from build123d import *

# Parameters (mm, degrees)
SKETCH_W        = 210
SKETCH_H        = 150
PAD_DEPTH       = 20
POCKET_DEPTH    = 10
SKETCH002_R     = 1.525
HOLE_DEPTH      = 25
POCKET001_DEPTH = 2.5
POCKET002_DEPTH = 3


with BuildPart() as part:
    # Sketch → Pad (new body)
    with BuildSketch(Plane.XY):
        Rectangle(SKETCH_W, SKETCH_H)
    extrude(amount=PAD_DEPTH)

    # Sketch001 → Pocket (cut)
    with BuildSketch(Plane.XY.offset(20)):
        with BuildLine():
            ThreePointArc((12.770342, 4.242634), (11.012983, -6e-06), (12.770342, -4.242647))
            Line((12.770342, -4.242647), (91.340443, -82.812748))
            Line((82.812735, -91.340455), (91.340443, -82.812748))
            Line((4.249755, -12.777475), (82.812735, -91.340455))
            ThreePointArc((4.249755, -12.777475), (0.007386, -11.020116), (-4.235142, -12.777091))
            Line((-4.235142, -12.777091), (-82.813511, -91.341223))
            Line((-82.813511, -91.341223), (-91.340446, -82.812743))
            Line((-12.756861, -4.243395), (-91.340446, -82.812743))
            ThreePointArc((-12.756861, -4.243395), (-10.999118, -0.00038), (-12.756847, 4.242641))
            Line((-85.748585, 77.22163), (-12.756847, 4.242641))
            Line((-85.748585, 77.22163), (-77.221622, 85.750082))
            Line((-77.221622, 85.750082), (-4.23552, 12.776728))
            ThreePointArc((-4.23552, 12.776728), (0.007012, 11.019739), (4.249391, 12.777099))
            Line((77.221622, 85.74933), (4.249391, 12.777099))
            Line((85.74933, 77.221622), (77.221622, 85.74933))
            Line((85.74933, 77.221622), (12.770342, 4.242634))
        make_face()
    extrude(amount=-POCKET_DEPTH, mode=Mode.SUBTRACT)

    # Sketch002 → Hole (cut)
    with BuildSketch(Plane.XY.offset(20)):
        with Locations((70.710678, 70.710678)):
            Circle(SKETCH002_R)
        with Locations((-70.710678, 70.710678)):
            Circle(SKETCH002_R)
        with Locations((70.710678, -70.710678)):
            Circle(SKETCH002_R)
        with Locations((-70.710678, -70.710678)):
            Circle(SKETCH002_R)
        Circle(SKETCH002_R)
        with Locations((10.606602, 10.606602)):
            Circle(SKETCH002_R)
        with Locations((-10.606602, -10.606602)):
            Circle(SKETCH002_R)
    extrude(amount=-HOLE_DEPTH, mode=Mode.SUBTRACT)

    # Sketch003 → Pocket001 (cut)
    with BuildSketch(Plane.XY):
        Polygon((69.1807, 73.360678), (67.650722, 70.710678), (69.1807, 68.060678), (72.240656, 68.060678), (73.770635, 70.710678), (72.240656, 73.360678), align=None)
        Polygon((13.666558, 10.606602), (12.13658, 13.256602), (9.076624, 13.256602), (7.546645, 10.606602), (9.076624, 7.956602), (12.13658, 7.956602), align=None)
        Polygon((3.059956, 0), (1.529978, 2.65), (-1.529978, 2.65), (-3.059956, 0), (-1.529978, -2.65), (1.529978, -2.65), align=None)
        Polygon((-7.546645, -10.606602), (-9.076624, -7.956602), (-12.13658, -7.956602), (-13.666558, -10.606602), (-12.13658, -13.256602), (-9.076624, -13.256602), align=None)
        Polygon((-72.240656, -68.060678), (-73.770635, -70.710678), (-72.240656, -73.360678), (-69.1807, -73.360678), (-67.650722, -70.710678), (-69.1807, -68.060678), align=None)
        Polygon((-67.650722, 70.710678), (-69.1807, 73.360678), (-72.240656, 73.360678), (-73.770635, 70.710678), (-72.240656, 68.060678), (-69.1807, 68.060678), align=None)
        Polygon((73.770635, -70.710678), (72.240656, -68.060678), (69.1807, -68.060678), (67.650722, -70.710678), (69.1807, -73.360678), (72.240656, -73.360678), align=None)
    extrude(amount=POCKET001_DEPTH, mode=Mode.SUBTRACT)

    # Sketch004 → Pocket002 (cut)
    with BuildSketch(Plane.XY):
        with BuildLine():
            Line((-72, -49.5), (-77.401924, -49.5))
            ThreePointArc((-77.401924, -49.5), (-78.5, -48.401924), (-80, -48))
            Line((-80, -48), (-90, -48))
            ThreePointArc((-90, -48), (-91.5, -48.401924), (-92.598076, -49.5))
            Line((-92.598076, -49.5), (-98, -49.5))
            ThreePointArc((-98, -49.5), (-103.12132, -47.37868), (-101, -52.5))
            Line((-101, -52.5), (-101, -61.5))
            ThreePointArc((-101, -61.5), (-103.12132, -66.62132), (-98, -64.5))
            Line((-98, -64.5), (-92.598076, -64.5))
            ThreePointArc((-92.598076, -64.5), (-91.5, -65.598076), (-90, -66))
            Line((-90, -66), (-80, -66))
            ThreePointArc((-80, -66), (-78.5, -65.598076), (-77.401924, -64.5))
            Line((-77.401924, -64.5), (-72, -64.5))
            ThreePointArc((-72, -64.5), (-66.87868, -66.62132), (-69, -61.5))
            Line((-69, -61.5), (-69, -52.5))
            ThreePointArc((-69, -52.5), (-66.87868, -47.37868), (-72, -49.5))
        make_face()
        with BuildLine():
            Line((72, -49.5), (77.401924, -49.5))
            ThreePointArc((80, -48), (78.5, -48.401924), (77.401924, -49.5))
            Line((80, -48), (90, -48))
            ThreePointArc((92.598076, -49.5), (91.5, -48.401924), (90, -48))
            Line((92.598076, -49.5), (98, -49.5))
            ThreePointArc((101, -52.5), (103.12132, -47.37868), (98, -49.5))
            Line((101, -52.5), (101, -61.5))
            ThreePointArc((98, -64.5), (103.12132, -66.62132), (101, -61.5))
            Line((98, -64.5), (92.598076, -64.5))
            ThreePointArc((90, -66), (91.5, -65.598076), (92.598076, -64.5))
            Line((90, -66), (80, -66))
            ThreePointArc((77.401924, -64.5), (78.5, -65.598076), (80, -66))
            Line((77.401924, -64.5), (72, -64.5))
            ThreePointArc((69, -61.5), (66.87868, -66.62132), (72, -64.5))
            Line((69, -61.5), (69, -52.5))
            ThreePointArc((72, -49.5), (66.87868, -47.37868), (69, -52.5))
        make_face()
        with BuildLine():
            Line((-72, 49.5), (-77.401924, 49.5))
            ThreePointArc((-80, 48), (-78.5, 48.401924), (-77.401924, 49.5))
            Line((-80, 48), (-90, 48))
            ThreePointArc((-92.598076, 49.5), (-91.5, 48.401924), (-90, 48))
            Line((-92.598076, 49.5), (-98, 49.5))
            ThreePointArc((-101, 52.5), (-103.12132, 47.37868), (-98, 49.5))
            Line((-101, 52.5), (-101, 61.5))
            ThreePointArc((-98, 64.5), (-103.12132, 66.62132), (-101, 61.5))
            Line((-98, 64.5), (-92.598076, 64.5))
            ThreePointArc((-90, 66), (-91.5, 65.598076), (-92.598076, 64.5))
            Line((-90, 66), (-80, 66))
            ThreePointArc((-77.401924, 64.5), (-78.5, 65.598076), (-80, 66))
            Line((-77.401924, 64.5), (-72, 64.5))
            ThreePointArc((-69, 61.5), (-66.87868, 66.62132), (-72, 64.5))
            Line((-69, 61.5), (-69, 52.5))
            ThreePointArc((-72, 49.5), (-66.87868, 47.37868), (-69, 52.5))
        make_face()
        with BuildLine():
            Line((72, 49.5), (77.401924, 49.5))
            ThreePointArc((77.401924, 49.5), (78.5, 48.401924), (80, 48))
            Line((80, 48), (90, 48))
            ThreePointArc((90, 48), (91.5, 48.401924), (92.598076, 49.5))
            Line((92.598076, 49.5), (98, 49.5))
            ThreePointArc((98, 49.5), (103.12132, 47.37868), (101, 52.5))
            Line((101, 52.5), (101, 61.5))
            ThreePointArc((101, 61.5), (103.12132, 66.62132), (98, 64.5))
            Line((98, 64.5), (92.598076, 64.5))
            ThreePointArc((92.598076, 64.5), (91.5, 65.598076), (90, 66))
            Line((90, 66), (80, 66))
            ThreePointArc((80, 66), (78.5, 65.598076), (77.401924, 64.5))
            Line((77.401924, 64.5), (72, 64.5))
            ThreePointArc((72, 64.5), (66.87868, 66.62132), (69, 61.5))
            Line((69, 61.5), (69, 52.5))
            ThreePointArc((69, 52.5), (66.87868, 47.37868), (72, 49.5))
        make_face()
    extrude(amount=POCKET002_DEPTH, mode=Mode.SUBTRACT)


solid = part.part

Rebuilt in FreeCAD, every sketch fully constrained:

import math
import FreeCAD as App
import Part
import Sketcher
from FreeCAD import Vector
Q = App.Units.Quantity

doc = App.newDocument("Part")
body = doc.addObject("PartDesign::Body", "Body")

# Sketch on XY plane
sketch1 = body.newObject("Sketcher::SketchObject", "Sketch")
sketch1.AttachmentSupport = (doc.getObject("XY_Plane"), [""])
sketch1.MapMode = "FlatFace"
sketch1.addGeometry([
    Part.LineSegment(Vector(-105, 75, 0), Vector(-105, -75, 0)),
    Part.LineSegment(Vector(-105, -75, 0), Vector(105, -75, 0)),
    Part.LineSegment(Vector(105, -75, 0), Vector(105, 75, 0)),
    Part.LineSegment(Vector(105, 75, 0), Vector(-105, 75, 0)),
], False)
sketch1.addConstraint([
    Sketcher.Constraint("Coincident", 0, 2, 1, 1),
    Sketcher.Constraint("Coincident", 1, 2, 2, 1),
    Sketcher.Constraint("Coincident", 2, 2, 3, 1),
    Sketcher.Constraint("Coincident", 3, 2, 0, 1),
    Sketcher.Constraint("Vertical", 0),
    Sketcher.Constraint("Horizontal", 1),
    Sketcher.Constraint("Vertical", 2),
    Sketcher.Constraint("Horizontal", 3),
    Sketcher.Constraint("Symmetric", 0, 2, 2, 2, -1, 1),
    Sketcher.Constraint("DistanceX", 1, 1, 1, 2, Q("210 mm")),
    Sketcher.Constraint("DistanceY", 0, 2, 0, 1, Q("150 mm")),
])
pad1 = body.newObject("PartDesign::Pad", "Pad")
pad1.Profile = sketch1
pad1.Length = 20

# Sketch on XY plane
sketch2 = body.newObject("Sketcher::SketchObject", "Sketch001")
sketch2.AttachmentSupport = (doc.getObject("XY_Plane"), [""])
sketch2.MapMode = "FlatFace"
sketch2.AttachmentOffset = App.Placement(Vector(0, 0, 20), App.Rotation())
sketch2.addGeometry([
    Part.ArcOfCircle(Part.Circle(Vector(17, 0, 0), Vector(0, 0, 1), 6), math.radians(135), math.radians(225)),  # 0
    Part.LineSegment(Vector(13, 4, 0), Vector(86, 77, 0)),  # 1
    Part.LineSegment(Vector(86, 77, 0), Vector(77, 86, 0)),  # 2
    Part.LineSegment(Vector(77, 86, 0), Vector(4, 13, 0)),  # 3
    Part.ArcOfCircle(Part.Circle(Vector(0, 17, 0), Vector(0, 0, 1), 6), math.radians(-135), math.radians(-45)),  # 4
    Part.LineSegment(Vector(-4, 13, 0), Vector(-77, 86, 0)),  # 5
    Part.LineSegment(Vector(-77, 86, 0), Vector(-86, 77, 0)),  # 6
    Part.LineSegment(Vector(-86, 77, 0), Vector(-13, 4, 0)),  # 7
    Part.ArcOfCircle(Part.Circle(Vector(-17, 0, 0), Vector(0, 0, 1), 6), math.radians(-45), math.radians(45)),  # 8
    Part.LineSegment(Vector(-13, -4, 0), Vector(-91, -83, 0)),  # 9
    Part.LineSegment(Vector(-91, -83, 0), Vector(-83, -91, 0)),  # 10
    Part.LineSegment(Vector(-83, -91, 0), Vector(-4, -13, 0)),  # 11
    Part.ArcOfCircle(Part.Circle(Vector(0, -17, 0), Vector(0, 0, 1), 6), math.radians(45), math.radians(135)),  # 12
    Part.LineSegment(Vector(4, -13, 0), Vector(83, -91, 0)),  # 13
    Part.LineSegment(Vector(83, -91, 0), Vector(91, -83, 0)),  # 14
    Part.LineSegment(Vector(91, -83, 0), Vector(13, -4, 0)),  # 15
], False)
sketch2.addConstraint([
    Sketcher.Constraint("Tangent", 0, 1, 1, 1),
    Sketcher.Constraint("Coincident", 1, 2, 2, 1),
    Sketcher.Constraint("Coincident", 2, 2, 3, 1),
    Sketcher.Constraint("Tangent", 3, 2, 4, 2),
    Sketcher.Constraint("Tangent", 4, 1, 5, 1),
    Sketcher.Constraint("Coincident", 5, 2, 6, 1),
    Sketcher.Constraint("Coincident", 6, 2, 7, 1),
    Sketcher.Constraint("Tangent", 7, 2, 8, 2),
    Sketcher.Constraint("Tangent", 8, 1, 9, 1),
    Sketcher.Constraint("Coincident", 9, 2, 10, 1),
    Sketcher.Constraint("Coincident", 10, 2, 11, 1),
    Sketcher.Constraint("Tangent", 11, 2, 12, 2),
    Sketcher.Constraint("Tangent", 12, 1, 13, 1),
    Sketcher.Constraint("Coincident", 13, 2, 14, 1),
    Sketcher.Constraint("Coincident", 14, 2, 15, 1),
    Sketcher.Constraint("Tangent", 15, 2, 0, 2),
    Sketcher.Constraint("Equal", 0, 4),
    Sketcher.Constraint("Equal", 0, 8),
    Sketcher.Constraint("Equal", 8, 12),
    Sketcher.Constraint("Symmetric", 9, 2, 14, 2, -2),
    Sketcher.Constraint("Perpendicular", 1, 2),
    Sketcher.Constraint("Perpendicular", 2, 3),
    Sketcher.Constraint("Perpendicular", 5, 6),
    Sketcher.Constraint("Perpendicular", 6, 7),
    Sketcher.Constraint("Perpendicular", 9, 10),
    Sketcher.Constraint("Perpendicular", 10, 11),
    Sketcher.Constraint("Perpendicular", 3, 13),
    Sketcher.Constraint("Perpendicular", 13, 14),
    Sketcher.Constraint("Perpendicular", 14, 15),
    Sketcher.Constraint("Vertical", 0, 1, 15, 2),
    Sketcher.Constraint("Equal", 2, 6),
    Sketcher.Constraint("Equal", 6, 10),
    Sketcher.Constraint("Equal", 10, 14),
    Sketcher.Constraint("Radius", 0, Q("6 mm")),
    Sketcher.Constraint("Distance", 2, Q("12.06 mm")),
    Sketcher.Constraint("DistanceY", 8, 3, 6, 2, Q("77.222 mm")),
    Sketcher.Constraint("DistanceY", -1, 1, 3, 2, Q("12.777099 mm")),
    Sketcher.Constraint("DistanceY", 8, 3, 2, 2, Q("85.7497 mm")),
    Sketcher.Constraint("DistanceX", 8, 3, 4, 1, Q("12.7636 mm")),
    Sketcher.Constraint("DistanceX", 5, 2, 4, 1, Q("72.986102 mm")),
    Sketcher.Constraint("DistanceX", 9, 2, 7, 2, Q("78.583599 mm")),
    Sketcher.Constraint("DistanceX", 0, 1, 14, 2, Q("78.570101 mm")),
    Sketcher.Constraint("Distance", 11, Q("111.116529 mm")),
])
pocket1 = body.newObject("PartDesign::Pocket", "Pocket")
pocket1.Profile = sketch2
pocket1.Length = 10

# Sketch on XY plane
sketch3 = body.newObject("Sketcher::SketchObject", "Sketch002")
sketch3.AttachmentSupport = (doc.getObject("XY_Plane"), [""])
sketch3.MapMode = "FlatFace"
sketch3.AttachmentOffset = App.Placement(Vector(0, 0, 20), App.Rotation())
sketch3.addGeometry([
    Part.Circle(Vector(70.7, 70.7, 0), Vector(0, 0, 1), 1.5),  # 0
    Part.Circle(Vector(-70.7, 70.7, 0), Vector(0, 0, 1), 1.5),  # 1
    Part.Circle(Vector(70.7, -70.7, 0), Vector(0, 0, 1), 1.5),  # 2
    Part.Circle(Vector(-70.7, -70.7, 0), Vector(0, 0, 1), 1.5),  # 3
    Part.Circle(Vector(0, 0, 0), Vector(0, 0, 1), 1.5),  # 4
    Part.Circle(Vector(10.6, 10.6, 0), Vector(0, 0, 1), 1.5),  # 5
    Part.Circle(Vector(-10.6, -10.6, 0), Vector(0, 0, 1), 1.5),  # 6
], False)
sketch3.addConstraint([
    Sketcher.Constraint("Coincident", 4, 3, -1, 1),
    Sketcher.Constraint("Equal", 0, 1),
    Sketcher.Constraint("Equal", 1, 2),
    Sketcher.Constraint("Equal", 2, 3),
    Sketcher.Constraint("Equal", 3, 4),
    Sketcher.Constraint("Equal", 4, 5),
    Sketcher.Constraint("Equal", 5, 6),
    Sketcher.Constraint("Symmetric", 1, 3, 2, 3, -1, 1),
    Sketcher.Constraint("Symmetric", 0, 3, 3, 3, -1, 1),
    Sketcher.Constraint("Symmetric", 5, 3, 6, 3, -1, 1),
    Sketcher.Constraint("Symmetric", 0, 3, 1, 3, -2),
    Sketcher.Constraint("Diameter", 0, Q("3.05 mm")),
    Sketcher.Constraint("DistanceX", -1, 1, 0, 3, Q("70.710678 mm")),
    Sketcher.Constraint("DistanceY", -1, 1, 0, 3, Q("70.710678 mm")),
    Sketcher.Constraint("DistanceX", 1, 3, 5, 3, Q("81.31728 mm")),
    Sketcher.Constraint("DistanceY", 2, 3, 5, 3, Q("81.31728 mm")),
])
pocket2 = body.newObject("PartDesign::Pocket", "Pocket001")
pocket2.Profile = sketch3
pocket2.Length = 25

# Sketch on XY plane
sketch4 = body.newObject("Sketcher::SketchObject", "Sketch003")
sketch4.AttachmentSupport = (doc.getObject("XY_Plane"), [""])
sketch4.MapMode = "FlatFace"
sketch4.addGeometry([
    Part.LineSegment(Vector(69.2, 73.4, 0), Vector(67.7, 70.7, 0)),  # 0
    Part.LineSegment(Vector(67.7, 70.7, 0), Vector(69.2, 68.1, 0)),  # 1
    Part.LineSegment(Vector(69.2, 68.1, 0), Vector(72.2, 68.1, 0)),  # 2
    Part.LineSegment(Vector(72.2, 68.1, 0), Vector(73.8, 70.7, 0)),  # 3
    Part.LineSegment(Vector(73.8, 70.7, 0), Vector(72.2, 73.4, 0)),  # 4
    Part.LineSegment(Vector(72.2, 73.4, 0), Vector(69.2, 73.4, 0)),  # 5
    Part.LineSegment(Vector(13.7, 10.6, 0), Vector(12.1, 13.3, 0)),  # 6
    Part.LineSegment(Vector(12.1, 13.3, 0), Vector(9.1, 13.3, 0)),  # 7
    Part.LineSegment(Vector(9.1, 13.3, 0), Vector(7.5, 10.6, 0)),  # 8
    Part.LineSegment(Vector(7.5, 10.6, 0), Vector(9.1, 8, 0)),  # 9
    Part.LineSegment(Vector(9.1, 8, 0), Vector(12.1, 8, 0)),  # 10
    Part.LineSegment(Vector(12.1, 8, 0), Vector(13.7, 10.6, 0)),  # 11
    Part.LineSegment(Vector(3.1, 0, 0), Vector(1.5, 2.6, 0)),  # 12
    Part.LineSegment(Vector(1.5, 2.6, 0), Vector(-1.5, 2.6, 0)),  # 13
    Part.LineSegment(Vector(-1.5, 2.6, 0), Vector(-3.1, 0, 0)),  # 14
    Part.LineSegment(Vector(-3.1, 0, 0), Vector(-1.5, -2.6, 0)),  # 15
    Part.LineSegment(Vector(-1.5, -2.6, 0), Vector(1.5, -2.6, 0)),  # 16
    Part.LineSegment(Vector(1.5, -2.6, 0), Vector(3.1, 0, 0)),  # 17
    Part.LineSegment(Vector(-7.5, -10.6, 0), Vector(-9.1, -8, 0)),  # 18
    Part.LineSegment(Vector(-9.1, -8, 0), Vector(-12.1, -8, 0)),  # 19
    Part.LineSegment(Vector(-12.1, -8, 0), Vector(-13.7, -10.6, 0)),  # 20
    Part.LineSegment(Vector(-13.7, -10.6, 0), Vector(-12.1, -13.3, 0)),  # 21
    Part.LineSegment(Vector(-12.1, -13.3, 0), Vector(-9.1, -13.3, 0)),  # 22
    Part.LineSegment(Vector(-9.1, -13.3, 0), Vector(-7.5, -10.6, 0)),  # 23
    Part.LineSegment(Vector(-72.2, -68.1, 0), Vector(-73.8, -70.7, 0)),  # 24
    Part.LineSegment(Vector(-73.8, -70.7, 0), Vector(-72.2, -73.4, 0)),  # 25
    Part.LineSegment(Vector(-72.2, -73.4, 0), Vector(-69.2, -73.4, 0)),  # 26
    Part.LineSegment(Vector(-69.2, -73.4, 0), Vector(-67.7, -70.7, 0)),  # 27
    Part.LineSegment(Vector(-67.7, -70.7, 0), Vector(-69.2, -68.1, 0)),  # 28
    Part.LineSegment(Vector(-69.2, -68.1, 0), Vector(-72.2, -68.1, 0)),  # 29
    Part.LineSegment(Vector(-67.7, 70.7, 0), Vector(-69.2, 73.4, 0)),  # 30
    Part.LineSegment(Vector(-69.2, 73.4, 0), Vector(-72.2, 73.4, 0)),  # 31
    Part.LineSegment(Vector(-72.2, 73.4, 0), Vector(-73.8, 70.7, 0)),  # 32
    Part.LineSegment(Vector(-73.8, 70.7, 0), Vector(-72.2, 68.1, 0)),  # 33
    Part.LineSegment(Vector(-72.2, 68.1, 0), Vector(-69.2, 68.1, 0)),  # 34
    Part.LineSegment(Vector(-69.2, 68.1, 0), Vector(-67.7, 70.7, 0)),  # 35
    Part.LineSegment(Vector(73.8, -70.7, 0), Vector(72.2, -68.1, 0)),  # 36
    Part.LineSegment(Vector(72.2, -68.1, 0), Vector(69.2, -68.1, 0)),  # 37
    Part.LineSegment(Vector(69.2, -68.1, 0), Vector(67.7, -70.7, 0)),  # 38
    Part.LineSegment(Vector(67.7, -70.7, 0), Vector(69.2, -73.4, 0)),  # 39
    Part.LineSegment(Vector(69.2, -73.4, 0), Vector(72.2, -73.4, 0)),  # 40
    Part.LineSegment(Vector(72.2, -73.4, 0), Vector(73.8, -70.7, 0)),  # 41
], False)
sketch4.addConstraint([
    Sketcher.Constraint("Coincident", 0, 2, 1, 1),
    Sketcher.Constraint("Coincident", 1, 2, 2, 1),
    Sketcher.Constraint("Coincident", 2, 2, 3, 1),
    Sketcher.Constraint("Coincident", 3, 2, 4, 1),
    Sketcher.Constraint("Coincident", 4, 2, 5, 1),
    Sketcher.Constraint("Coincident", 5, 2, 0, 1),
    Sketcher.Constraint("Coincident", 6, 2, 7, 1),
    Sketcher.Constraint("Coincident", 7, 2, 8, 1),
    Sketcher.Constraint("Coincident", 8, 2, 9, 1),
    Sketcher.Constraint("Coincident", 9, 2, 10, 1),
    Sketcher.Constraint("Coincident", 10, 2, 11, 1),
    Sketcher.Constraint("Coincident", 11, 2, 6, 1),
    Sketcher.Constraint("Coincident", 12, 2, 13, 1),
    Sketcher.Constraint("Coincident", 13, 2, 14, 1),
    Sketcher.Constraint("Coincident", 14, 2, 15, 1),
    Sketcher.Constraint("Coincident", 15, 2, 16, 1),
    Sketcher.Constraint("Coincident", 16, 2, 17, 1),
    Sketcher.Constraint("Coincident", 17, 2, 12, 1),
    Sketcher.Constraint("Coincident", 18, 2, 19, 1),
    Sketcher.Constraint("Coincident", 19, 2, 20, 1),
    Sketcher.Constraint("Coincident", 20, 2, 21, 1),
    Sketcher.Constraint("Coincident", 21, 2, 22, 1),
    Sketcher.Constraint("Coincident", 22, 2, 23, 1),
    Sketcher.Constraint("Coincident", 23, 2, 18, 1),
    Sketcher.Constraint("Coincident", 24, 2, 25, 1),
    Sketcher.Constraint("Coincident", 25, 2, 26, 1),
    Sketcher.Constraint("Coincident", 26, 2, 27, 1),
    Sketcher.Constraint("Coincident", 27, 2, 28, 1),
    Sketcher.Constraint("Coincident", 28, 2, 29, 1),
    Sketcher.Constraint("Coincident", 29, 2, 24, 1),
    Sketcher.Constraint("Coincident", 30, 2, 31, 1),
    Sketcher.Constraint("Coincident", 31, 2, 32, 1),
    Sketcher.Constraint("Coincident", 32, 2, 33, 1),
    Sketcher.Constraint("Coincident", 33, 2, 34, 1),
    Sketcher.Constraint("Coincident", 34, 2, 35, 1),
    Sketcher.Constraint("Coincident", 35, 2, 30, 1),
    Sketcher.Constraint("Coincident", 36, 2, 37, 1),
    Sketcher.Constraint("Coincident", 37, 2, 38, 1),
    Sketcher.Constraint("Coincident", 38, 2, 39, 1),
    Sketcher.Constraint("Coincident", 39, 2, 40, 1),
    Sketcher.Constraint("Coincident", 40, 2, 41, 1),
    Sketcher.Constraint("Coincident", 41, 2, 36, 1),
    Sketcher.Constraint("Horizontal", 2),
    Sketcher.Constraint("Horizontal", 5),
    Sketcher.Constraint("Horizontal", 7),
    Sketcher.Constraint("Horizontal", 10),
    Sketcher.Constraint("Horizontal", 13),
    Sketcher.Constraint("Horizontal", 16),
    Sketcher.Constraint("Horizontal", 19),
    Sketcher.Constraint("Horizontal", 22),
    Sketcher.Constraint("Horizontal", 26),
    Sketcher.Constraint("Horizontal", 29),
    Sketcher.Constraint("Horizontal", 31),
    Sketcher.Constraint("Horizontal", 34),
    Sketcher.Constraint("Horizontal", 37),
    Sketcher.Constraint("Horizontal", 40),
    Sketcher.Constraint("Symmetric", 12, 2, 15, 2, -1, 1),
    Sketcher.Constraint("Symmetric", 14, 2, 17, 2, -1, 1),
    Sketcher.Constraint("Symmetric", 9, 2, 18, 2, -1, 1),
    Sketcher.Constraint("Symmetric", 11, 2, 20, 2, -1, 1),
    Sketcher.Constraint("Symmetric", 6, 2, 21, 2, -1, 1),
    Sketcher.Constraint("Symmetric", 8, 2, 23, 2, -1, 1),
    Sketcher.Constraint("Symmetric", 3, 2, 24, 2, -1, 1),
    Sketcher.Constraint("Symmetric", 4, 2, 25, 2, -1, 1),
    Sketcher.Constraint("Symmetric", 0, 2, 27, 2, -1, 1),
    Sketcher.Constraint("Symmetric", 1, 2, 28, 2, -1, 1),
    Sketcher.Constraint("Symmetric", 33, 2, 36, 2, -1, 1),
    Sketcher.Constraint("Symmetric", 35, 2, 38, 2, -1, 1),
    Sketcher.Constraint("Symmetric", 30, 2, 39, 2, -1, 1),
    Sketcher.Constraint("Symmetric", 32, 2, 41, 2, -1, 1),
    Sketcher.Constraint("Symmetric", 5, 2, 30, 2, -2),
    Sketcher.Constraint("Symmetric", 3, 2, 32, 2, -2),
    Sketcher.Constraint("Symmetric", 2, 2, 33, 2, -2),
    Sketcher.Constraint("Symmetric", 0, 2, 35, 2, -2),
    Sketcher.Constraint("PointOnObject", 14, 2, -1),
    Sketcher.Constraint("Parallel", 0, 3),
    Sketcher.Constraint("Parallel", 1, 4),
    Sketcher.Constraint("Parallel", 4, 6),
    Sketcher.Constraint("Parallel", 3, 8),
    Sketcher.Constraint("Parallel", 6, 9),
    Sketcher.Constraint("Parallel", 8, 11),
    Sketcher.Constraint("Parallel", 9, 12),
    Sketcher.Constraint("Parallel", 11, 14),
    Sketcher.Constraint("Parallel", 14, 17),
    Sketcher.Constraint("Parallel", 17, 20),
    Sketcher.Constraint("Parallel", 20, 23),
    Sketcher.Constraint("Parallel", 23, 24),
    Sketcher.Constraint("Parallel", 24, 27),
    Sketcher.Constraint("Parallel", 28, 30),
    Sketcher.Constraint("Parallel", 27, 32),
    Sketcher.Constraint("Parallel", 32, 35),
    Sketcher.Constraint("Parallel", 35, 38),
    Sketcher.Constraint("Parallel", 38, 41),
    Sketcher.Constraint("Horizontal", 0, 2, 3, 2),
    Sketcher.Constraint("Horizontal", 8, 2, 11, 2),
    Sketcher.Constraint("Vertical", 2, 2, 4, 2),
    Sketcher.Constraint("Vertical", 7, 2, 9, 2),
    Sketcher.Constraint("Equal", 5, 7),
    Sketcher.Constraint("Equal", 10, 13),
    Sketcher.Constraint("Equal", 4, 6),
    Sketcher.Constraint("Equal", 11, 12),
    Sketcher.Constraint("Angle", 0, Q("-119.999997 deg")),
    Sketcher.Constraint("DistanceY", 2, 2, 4, 2, Q("5.3 mm")),
    Sketcher.Constraint("DistanceX", -1, 1, 1, 2, Q("69.1807 mm")),
    Sketcher.Constraint("DistanceY", 12, 2, 9, 2, Q("5.306602 mm")),
    Sketcher.Constraint("DistanceX", 14, 2, 8, 2, Q("10.606601 mm")),
    Sketcher.Constraint("DistanceX", 31, 2, 14, 2, Q("69.1807 mm")),
    Sketcher.Constraint("DistanceY", -1, 1, 0, 2, Q("70.710678 mm")),
])
pocket3 = body.newObject("PartDesign::Pocket", "Pocket002")
pocket3.Profile = sketch4
pocket3.Length = 2.5
pocket3.Reversed = True

# Sketch on XY plane
sketch5 = body.newObject("Sketcher::SketchObject", "Sketch004")
sketch5.AttachmentSupport = (doc.getObject("XY_Plane"), [""])
sketch5.MapMode = "FlatFace"
sketch5.addGeometry([
    Part.LineSegment(Vector(-72, -49.5, 0), Vector(-77.4, -49.5, 0)),  # 0
    Part.ArcOfCircle(Part.Circle(Vector(-80, -51, 0), Vector(0, 0, 1), 3), math.radians(30), math.radians(90)),  # 1
    Part.LineSegment(Vector(-80, -48, 0), Vector(-90, -48, 0)),  # 2
    Part.ArcOfCircle(Part.Circle(Vector(-90, -51, 0), Vector(0, 0, 1), 3), math.radians(90), math.radians(150)),  # 3
    Part.LineSegment(Vector(-92.6, -49.5, 0), Vector(-98, -49.5, 0)),  # 4
    Part.ArcOfCircle(Part.Circle(Vector(-101, -49.5, 0), Vector(0, 0, 1), 3), math.radians(0), math.radians(270)),  # 5
    Part.LineSegment(Vector(-101, -52.5, 0), Vector(-101, -61.5, 0)),  # 6
    Part.ArcOfCircle(Part.Circle(Vector(-101, -64.5, 0), Vector(0, 0, 1), 3), math.radians(90), math.radians(360)),  # 7
    Part.LineSegment(Vector(-98, -64.5, 0), Vector(-92.6, -64.5, 0)),  # 8
    Part.ArcOfCircle(Part.Circle(Vector(-90, -63, 0), Vector(0, 0, 1), 3), math.radians(-150), math.radians(-90)),  # 9
    Part.LineSegment(Vector(-90, -66, 0), Vector(-80, -66, 0)),  # 10
    Part.ArcOfCircle(Part.Circle(Vector(-80, -63, 0), Vector(0, 0, 1), 3), math.radians(-90), math.radians(-30)),  # 11
    Part.LineSegment(Vector(-77.4, -64.5, 0), Vector(-72, -64.5, 0)),  # 12
    Part.ArcOfCircle(Part.Circle(Vector(-69, -64.5, 0), Vector(0, 0, 1), 3), math.radians(-180), math.radians(90)),  # 13
    Part.LineSegment(Vector(-69, -61.5, 0), Vector(-69, -52.5, 0)),  # 14
    Part.ArcOfCircle(Part.Circle(Vector(-69, -49.5, 0), Vector(0, 0, 1), 3), math.radians(-90), math.radians(180)),  # 15
    Part.LineSegment(Vector(77.4, -49.5, 0), Vector(72, -49.5, 0)),  # 16
    Part.ArcOfCircle(Part.Circle(Vector(69, -49.5, 0), Vector(0, 0, 1), 3), math.radians(0), math.radians(270)),  # 17
    Part.LineSegment(Vector(69, -52.5, 0), Vector(69, -61.5, 0)),  # 18
    Part.ArcOfCircle(Part.Circle(Vector(69, -64.5, 0), Vector(0, 0, 1), 3), math.radians(90), math.radians(360)),  # 19
    Part.LineSegment(Vector(72, -64.5, 0), Vector(77.4, -64.5, 0)),  # 20
    Part.ArcOfCircle(Part.Circle(Vector(80, -63, 0), Vector(0, 0, 1), 3), math.radians(-150), math.radians(-90)),  # 21
    Part.LineSegment(Vector(80, -66, 0), Vector(90, -66, 0)),  # 22
    Part.ArcOfCircle(Part.Circle(Vector(90, -63, 0), Vector(0, 0, 1), 3), math.radians(-90), math.radians(-30)),  # 23
    Part.LineSegment(Vector(92.6, -64.5, 0), Vector(98, -64.5, 0)),  # 24
    Part.ArcOfCircle(Part.Circle(Vector(101, -64.5, 0), Vector(0, 0, 1), 3), math.radians(-180), math.radians(90)),  # 25
    Part.LineSegment(Vector(101, -61.5, 0), Vector(101, -52.5, 0)),  # 26
    Part.ArcOfCircle(Part.Circle(Vector(101, -49.5, 0), Vector(0, 0, 1), 3), math.radians(-90), math.radians(180)),  # 27
    Part.LineSegment(Vector(98, -49.5, 0), Vector(92.6, -49.5, 0)),  # 28
    Part.ArcOfCircle(Part.Circle(Vector(90, -51, 0), Vector(0, 0, 1), 3), math.radians(30), math.radians(90)),  # 29
    Part.LineSegment(Vector(90, -48, 0), Vector(80, -48, 0)),  # 30
    Part.ArcOfCircle(Part.Circle(Vector(80, -51, 0), Vector(0, 0, 1), 3), math.radians(90), math.radians(150)),  # 31
    Part.LineSegment(Vector(-77.4, 49.5, 0), Vector(-72, 49.5, 0)),  # 32
    Part.ArcOfCircle(Part.Circle(Vector(-69, 49.5, 0), Vector(0, 0, 1), 3), math.radians(-180), math.radians(90)),  # 33
    Part.LineSegment(Vector(-69, 52.5, 0), Vector(-69, 61.5, 0)),  # 34
    Part.ArcOfCircle(Part.Circle(Vector(-69, 64.5, 0), Vector(0, 0, 1), 3), math.radians(-90), math.radians(180)),  # 35
    Part.LineSegment(Vector(-72, 64.5, 0), Vector(-77.4, 64.5, 0)),  # 36
    Part.ArcOfCircle(Part.Circle(Vector(-80, 63, 0), Vector(0, 0, 1), 3), math.radians(30), math.radians(90)),  # 37
    Part.LineSegment(Vector(-80, 66, 0), Vector(-90, 66, 0)),  # 38
    Part.ArcOfCircle(Part.Circle(Vector(-90, 63, 0), Vector(0, 0, 1), 3), math.radians(90), math.radians(150)),  # 39
    Part.LineSegment(Vector(-92.6, 64.5, 0), Vector(-98, 64.5, 0)),  # 40
    Part.ArcOfCircle(Part.Circle(Vector(-101, 64.5, 0), Vector(0, 0, 1), 3), math.radians(0), math.radians(270)),  # 41
    Part.LineSegment(Vector(-101, 61.5, 0), Vector(-101, 52.5, 0)),  # 42
    Part.ArcOfCircle(Part.Circle(Vector(-101, 49.5, 0), Vector(0, 0, 1), 3), math.radians(90), math.radians(360)),  # 43
    Part.LineSegment(Vector(-98, 49.5, 0), Vector(-92.6, 49.5, 0)),  # 44
    Part.ArcOfCircle(Part.Circle(Vector(-90, 51, 0), Vector(0, 0, 1), 3), math.radians(-150), math.radians(-90)),  # 45
    Part.LineSegment(Vector(-90, 48, 0), Vector(-80, 48, 0)),  # 46
    Part.ArcOfCircle(Part.Circle(Vector(-80, 51, 0), Vector(0, 0, 1), 3), math.radians(-90), math.radians(-30)),  # 47
    Part.LineSegment(Vector(72, 49.5, 0), Vector(77.4, 49.5, 0)),  # 48
    Part.ArcOfCircle(Part.Circle(Vector(80, 51, 0), Vector(0, 0, 1), 3), math.radians(-150), math.radians(-90)),  # 49
    Part.LineSegment(Vector(80, 48, 0), Vector(90, 48, 0)),  # 50
    Part.ArcOfCircle(Part.Circle(Vector(90, 51, 0), Vector(0, 0, 1), 3), math.radians(-90), math.radians(-30)),  # 51
    Part.LineSegment(Vector(92.6, 49.5, 0), Vector(98, 49.5, 0)),  # 52
    Part.ArcOfCircle(Part.Circle(Vector(101, 49.5, 0), Vector(0, 0, 1), 3), math.radians(-180), math.radians(90)),  # 53
    Part.LineSegment(Vector(101, 52.5, 0), Vector(101, 61.5, 0)),  # 54
    Part.ArcOfCircle(Part.Circle(Vector(101, 64.5, 0), Vector(0, 0, 1), 3), math.radians(-90), math.radians(180)),  # 55
    Part.LineSegment(Vector(98, 64.5, 0), Vector(92.6, 64.5, 0)),  # 56
    Part.ArcOfCircle(Part.Circle(Vector(90, 63, 0), Vector(0, 0, 1), 3), math.radians(30), math.radians(90)),  # 57
    Part.LineSegment(Vector(90, 66, 0), Vector(80, 66, 0)),  # 58
    Part.ArcOfCircle(Part.Circle(Vector(80, 63, 0), Vector(0, 0, 1), 3), math.radians(90), math.radians(150)),  # 59
    Part.LineSegment(Vector(77.4, 64.5, 0), Vector(72, 64.5, 0)),  # 60
    Part.ArcOfCircle(Part.Circle(Vector(69, 64.5, 0), Vector(0, 0, 1), 3), math.radians(0), math.radians(270)),  # 61
    Part.LineSegment(Vector(69, 61.5, 0), Vector(69, 52.5, 0)),  # 62
    Part.ArcOfCircle(Part.Circle(Vector(69, 49.5, 0), Vector(0, 0, 1), 3), math.radians(90), math.radians(360)),  # 63
], False)
sketch5.addConstraint([
    Sketcher.Constraint("Coincident", 0, 2, 1, 1),
    Sketcher.Constraint("Tangent", 1, 2, 2, 1),
    Sketcher.Constraint("Tangent", 2, 2, 3, 1),
    Sketcher.Constraint("Coincident", 3, 2, 4, 1),
    Sketcher.Constraint("Coincident", 4, 2, 5, 1),
    Sketcher.Constraint("Coincident", 5, 2, 6, 1),
    Sketcher.Constraint("Coincident", 6, 2, 7, 1),
    Sketcher.Constraint("Coincident", 7, 2, 8, 1),
    Sketcher.Constraint("Coincident", 8, 2, 9, 1),
    Sketcher.Constraint("Tangent", 9, 2, 10, 1),
    Sketcher.Constraint("Tangent", 10, 2, 11, 1),
    Sketcher.Constraint("Coincident", 11, 2, 12, 1),
    Sketcher.Constraint("Coincident", 12, 2, 13, 1),
    Sketcher.Constraint("Coincident", 13, 2, 14, 1),
    Sketcher.Constraint("Coincident", 14, 2, 15, 1),
    Sketcher.Constraint("Coincident", 15, 2, 0, 1),
    Sketcher.Constraint("Coincident", 16, 2, 17, 1),
    Sketcher.Constraint("Coincident", 17, 2, 18, 1),
    Sketcher.Constraint("Coincident", 18, 2, 19, 1),
    Sketcher.Constraint("Coincident", 19, 2, 20, 1),
    Sketcher.Constraint("Coincident", 20, 2, 21, 1),
    Sketcher.Constraint("Tangent", 21, 2, 22, 1),
    Sketcher.Constraint("Tangent", 22, 2, 23, 1),
    Sketcher.Constraint("Coincident", 23, 2, 24, 1),
    Sketcher.Constraint("Coincident", 24, 2, 25, 1),
    Sketcher.Constraint("Coincident", 25, 2, 26, 1),
    Sketcher.Constraint("Coincident", 26, 2, 27, 1),
    Sketcher.Constraint("Coincident", 27, 2, 28, 1),
    Sketcher.Constraint("Coincident", 28, 2, 29, 1),
    Sketcher.Constraint("Tangent", 29, 2, 30, 1),
    Sketcher.Constraint("Tangent", 30, 2, 31, 1),
    Sketcher.Constraint("Coincident", 31, 2, 16, 1),
    Sketcher.Constraint("Coincident", 32, 2, 33, 1),
    Sketcher.Constraint("Coincident", 33, 2, 34, 1),
    Sketcher.Constraint("Coincident", 34, 2, 35, 1),
    Sketcher.Constraint("Coincident", 35, 2, 36, 1),
    Sketcher.Constraint("Coincident", 36, 2, 37, 1),
    Sketcher.Constraint("Tangent", 37, 2, 38, 1),
    Sketcher.Constraint("Tangent", 38, 2, 39, 1),
    Sketcher.Constraint("Coincident", 39, 2, 40, 1),
    Sketcher.Constraint("Coincident", 40, 2, 41, 1),
    Sketcher.Constraint("Coincident", 41, 2, 42, 1),
    Sketcher.Constraint("Coincident", 42, 2, 43, 1),
    Sketcher.Constraint("Coincident", 43, 2, 44, 1),
    Sketcher.Constraint("Coincident", 44, 2, 45, 1),
    Sketcher.Constraint("Tangent", 45, 2, 46, 1),
    Sketcher.Constraint("Tangent", 46, 2, 47, 1),
    Sketcher.Constraint("Coincident", 47, 2, 32, 1),
    Sketcher.Constraint("Coincident", 48, 2, 49, 1),
    Sketcher.Constraint("Tangent", 49, 2, 50, 1),
    Sketcher.Constraint("Tangent", 50, 2, 51, 1),
    Sketcher.Constraint("Coincident", 51, 2, 52, 1),
    Sketcher.Constraint("Coincident", 52, 2, 53, 1),
    Sketcher.Constraint("Coincident", 53, 2, 54, 1),
    Sketcher.Constraint("Coincident", 54, 2, 55, 1),
    Sketcher.Constraint("Coincident", 55, 2, 56, 1),
    Sketcher.Constraint("Coincident", 56, 2, 57, 1),
    Sketcher.Constraint("Tangent", 57, 2, 58, 1),
    Sketcher.Constraint("Tangent", 58, 2, 59, 1),
    Sketcher.Constraint("Coincident", 59, 2, 60, 1),
    Sketcher.Constraint("Coincident", 60, 2, 61, 1),
    Sketcher.Constraint("Coincident", 61, 2, 62, 1),
    Sketcher.Constraint("Coincident", 62, 2, 63, 1),
    Sketcher.Constraint("Coincident", 63, 2, 48, 1),
    Sketcher.Constraint("Horizontal", 0),
    Sketcher.Constraint("Horizontal", 2),
    Sketcher.Constraint("Horizontal", 4),
    Sketcher.Constraint("Vertical", 6),
    Sketcher.Constraint("Horizontal", 8),
    Sketcher.Constraint("Horizontal", 10),
    Sketcher.Constraint("Horizontal", 12),
    Sketcher.Constraint("Vertical", 14),
    Sketcher.Constraint("Horizontal", 16),
    Sketcher.Constraint("Vertical", 18),
    Sketcher.Constraint("Horizontal", 20),
    Sketcher.Constraint("Horizontal", 22),
    Sketcher.Constraint("Horizontal", 24),
    Sketcher.Constraint("Vertical", 26),
    Sketcher.Constraint("Horizontal", 28),
    Sketcher.Constraint("Horizontal", 30),
    Sketcher.Constraint("Horizontal", 32),
    Sketcher.Constraint("Vertical", 34),
    Sketcher.Constraint("Horizontal", 36),
    Sketcher.Constraint("Horizontal", 38),
    Sketcher.Constraint("Horizontal", 40),
    Sketcher.Constraint("Vertical", 42),
    Sketcher.Constraint("Horizontal", 44),
    Sketcher.Constraint("Horizontal", 46),
    Sketcher.Constraint("Horizontal", 48),
    Sketcher.Constraint("Horizontal", 50),
    Sketcher.Constraint("Horizontal", 52),
    Sketcher.Constraint("Vertical", 54),
    Sketcher.Constraint("Horizontal", 56),
    Sketcher.Constraint("Horizontal", 58),
    Sketcher.Constraint("Horizontal", 60),
    Sketcher.Constraint("Vertical", 62),
    Sketcher.Constraint("Equal", 1, 3),
    Sketcher.Constraint("Equal", 3, 5),
    Sketcher.Constraint("Equal", 5, 7),
    Sketcher.Constraint("Equal", 7, 9),
    Sketcher.Constraint("Equal", 9, 11),
    Sketcher.Constraint("Equal", 11, 13),
    Sketcher.Constraint("Equal", 13, 15),
    Sketcher.Constraint("Equal", 15, 17),
    Sketcher.Constraint("Equal", 17, 19),
    Sketcher.Constraint("Equal", 19, 21),
    Sketcher.Constraint("Equal", 21, 23),
    Sketcher.Constraint("Equal", 23, 25),
    Sketcher.Constraint("Equal", 25, 27),
    Sketcher.Constraint("Equal", 27, 29),
    Sketcher.Constraint("Equal", 29, 31),
    Sketcher.Constraint("Equal", 31, 33),
    Sketcher.Constraint("Equal", 33, 35),
    Sketcher.Constraint("Equal", 35, 37),
    Sketcher.Constraint("Equal", 37, 39),
    Sketcher.Constraint("Equal", 39, 41),
    Sketcher.Constraint("Equal", 41, 43),
    Sketcher.Constraint("Equal", 43, 45),
    Sketcher.Constraint("Equal", 45, 47),
    Sketcher.Constraint("Equal", 47, 49),
    Sketcher.Constraint("Equal", 49, 51),
    Sketcher.Constraint("Equal", 51, 53),
    Sketcher.Constraint("Equal", 53, 55),
    Sketcher.Constraint("Equal", 55, 57),
    Sketcher.Constraint("Equal", 57, 59),
    Sketcher.Constraint("Equal", 59, 61),
    Sketcher.Constraint("Equal", 61, 63),
    Sketcher.Constraint("Symmetric", 17, 3, 33, 3, -1, 1),
    Sketcher.Constraint("Symmetric", 19, 3, 35, 3, -1, 1),
    Sketcher.Constraint("Symmetric", 21, 3, 37, 3, -1, 1),
    Sketcher.Constraint("Symmetric", 25, 3, 41, 3, -1, 1),
    Sketcher.Constraint("Symmetric", 27, 3, 43, 3, -1, 1),
    Sketcher.Constraint("Symmetric", 29, 3, 45, 3, -1, 1),
    Sketcher.Constraint("Symmetric", 1, 3, 49, 3, -1, 1),
    Sketcher.Constraint("Symmetric", 5, 3, 53, 3, -1, 1),
    Sketcher.Constraint("Symmetric", 7, 3, 55, 3, -1, 1),
    Sketcher.Constraint("Symmetric", 9, 3, 57, 3, -1, 1),
    Sketcher.Constraint("Symmetric", 13, 3, 61, 3, -1, 1),
    Sketcher.Constraint("Symmetric", 15, 3, 63, 3, -1, 1),
    Sketcher.Constraint("Symmetric", 23, 2, 39, 2, -1, 1),
    Sketcher.Constraint("Symmetric", 31, 2, 47, 2, -1, 1),
    Sketcher.Constraint("Symmetric", 3, 2, 51, 2, -1, 1),
    Sketcher.Constraint("Symmetric", 11, 2, 59, 2, -1, 1),
    Sketcher.Constraint("Symmetric", 15, 3, 17, 3, -2),
    Sketcher.Constraint("Symmetric", 13, 3, 19, 3, -2),
    Sketcher.Constraint("Symmetric", 11, 3, 21, 3, -2),
    Sketcher.Constraint("Symmetric", 7, 3, 25, 3, -2),
    Sketcher.Constraint("Symmetric", 5, 3, 27, 3, -2),
    Sketcher.Constraint("Symmetric", 3, 3, 29, 3, -2),
    Sketcher.Constraint("Symmetric", 8, 2, 23, 2, -2),
    Sketcher.Constraint("Symmetric", 0, 2, 31, 2, -2),
    Sketcher.Constraint("Horizontal", 7, 3, 13, 3),
    Sketcher.Constraint("Horizontal", 5, 3, 15, 3),
    Sketcher.Constraint("Horizontal", 27, 3, 0, 2),
    Sketcher.Constraint("Horizontal", 0, 2, 3, 2),
    Sketcher.Constraint("Horizontal", 25, 3, 7, 2),
    Sketcher.Constraint("Horizontal", 8, 2, 11, 2),
    Sketcher.Constraint("Horizontal", 12, 2, 19, 2),
    Sketcher.Constraint("Horizontal", 16, 2, 27, 2),
    Sketcher.Constraint("Horizontal", 61, 3, 35, 2),
    Sketcher.Constraint("Horizontal", 32, 2, 43, 2),
    Sketcher.Constraint("Horizontal", 47, 2, 48, 2),
    Sketcher.Constraint("Horizontal", 40, 2, 55, 2),
    Sketcher.Constraint("Vertical", 5, 3, 7, 3),
    Sketcher.Constraint("Vertical", 3, 3, 9, 3),
    Sketcher.Constraint("Vertical", 1, 3, 11, 3),
    Sketcher.Constraint("Vertical", 13, 3, 15, 3),
    Sketcher.Constraint("Vertical", 43, 3, 5, 2),
    Sketcher.Constraint("Vertical", 3, 2, 8, 2),
    Sketcher.Constraint("Vertical", 35, 3, 13, 2),
    Sketcher.Constraint("Vertical", 63, 3, 17, 2),
    Sketcher.Constraint("Vertical", 55, 3, 25, 2),
    Sketcher.Constraint("Vertical", 14, 2, 33, 2),
    Sketcher.Constraint("Vertical", 6, 2, 41, 2),
    Sketcher.Constraint("Vertical", 26, 2, 53, 2),
    Sketcher.Constraint("Vertical", 18, 2, 61, 2),
    Sketcher.Constraint("Equal", 0, 4),
    Sketcher.Constraint("Radius", 1, Q("3.000001 mm")),
    Sketcher.Constraint("DistanceX", 2, 2, 2, 1, Q("10 mm")),
    Sketcher.Constraint("DistanceY", 6, 2, 6, 1, Q("9 mm")),
    Sketcher.Constraint("DistanceX", 1, 3, -1, 1, Q("80 mm")),
    Sketcher.Constraint("DistanceY", 1, 3, -1, 1, Q("51 mm")),
    Sketcher.Constraint("DistanceX", 5, 3, -1, 1, Q("101 mm")),
    Sketcher.Constraint("DistanceY", 9, 3, -1, 1, Q("63 mm")),
])
pocket4 = body.newObject("PartDesign::Pocket", "Pocket003")
pocket4.Profile = sketch5
pocket4.Length = 3
pocket4.Reversed = True

doc.recompute()
